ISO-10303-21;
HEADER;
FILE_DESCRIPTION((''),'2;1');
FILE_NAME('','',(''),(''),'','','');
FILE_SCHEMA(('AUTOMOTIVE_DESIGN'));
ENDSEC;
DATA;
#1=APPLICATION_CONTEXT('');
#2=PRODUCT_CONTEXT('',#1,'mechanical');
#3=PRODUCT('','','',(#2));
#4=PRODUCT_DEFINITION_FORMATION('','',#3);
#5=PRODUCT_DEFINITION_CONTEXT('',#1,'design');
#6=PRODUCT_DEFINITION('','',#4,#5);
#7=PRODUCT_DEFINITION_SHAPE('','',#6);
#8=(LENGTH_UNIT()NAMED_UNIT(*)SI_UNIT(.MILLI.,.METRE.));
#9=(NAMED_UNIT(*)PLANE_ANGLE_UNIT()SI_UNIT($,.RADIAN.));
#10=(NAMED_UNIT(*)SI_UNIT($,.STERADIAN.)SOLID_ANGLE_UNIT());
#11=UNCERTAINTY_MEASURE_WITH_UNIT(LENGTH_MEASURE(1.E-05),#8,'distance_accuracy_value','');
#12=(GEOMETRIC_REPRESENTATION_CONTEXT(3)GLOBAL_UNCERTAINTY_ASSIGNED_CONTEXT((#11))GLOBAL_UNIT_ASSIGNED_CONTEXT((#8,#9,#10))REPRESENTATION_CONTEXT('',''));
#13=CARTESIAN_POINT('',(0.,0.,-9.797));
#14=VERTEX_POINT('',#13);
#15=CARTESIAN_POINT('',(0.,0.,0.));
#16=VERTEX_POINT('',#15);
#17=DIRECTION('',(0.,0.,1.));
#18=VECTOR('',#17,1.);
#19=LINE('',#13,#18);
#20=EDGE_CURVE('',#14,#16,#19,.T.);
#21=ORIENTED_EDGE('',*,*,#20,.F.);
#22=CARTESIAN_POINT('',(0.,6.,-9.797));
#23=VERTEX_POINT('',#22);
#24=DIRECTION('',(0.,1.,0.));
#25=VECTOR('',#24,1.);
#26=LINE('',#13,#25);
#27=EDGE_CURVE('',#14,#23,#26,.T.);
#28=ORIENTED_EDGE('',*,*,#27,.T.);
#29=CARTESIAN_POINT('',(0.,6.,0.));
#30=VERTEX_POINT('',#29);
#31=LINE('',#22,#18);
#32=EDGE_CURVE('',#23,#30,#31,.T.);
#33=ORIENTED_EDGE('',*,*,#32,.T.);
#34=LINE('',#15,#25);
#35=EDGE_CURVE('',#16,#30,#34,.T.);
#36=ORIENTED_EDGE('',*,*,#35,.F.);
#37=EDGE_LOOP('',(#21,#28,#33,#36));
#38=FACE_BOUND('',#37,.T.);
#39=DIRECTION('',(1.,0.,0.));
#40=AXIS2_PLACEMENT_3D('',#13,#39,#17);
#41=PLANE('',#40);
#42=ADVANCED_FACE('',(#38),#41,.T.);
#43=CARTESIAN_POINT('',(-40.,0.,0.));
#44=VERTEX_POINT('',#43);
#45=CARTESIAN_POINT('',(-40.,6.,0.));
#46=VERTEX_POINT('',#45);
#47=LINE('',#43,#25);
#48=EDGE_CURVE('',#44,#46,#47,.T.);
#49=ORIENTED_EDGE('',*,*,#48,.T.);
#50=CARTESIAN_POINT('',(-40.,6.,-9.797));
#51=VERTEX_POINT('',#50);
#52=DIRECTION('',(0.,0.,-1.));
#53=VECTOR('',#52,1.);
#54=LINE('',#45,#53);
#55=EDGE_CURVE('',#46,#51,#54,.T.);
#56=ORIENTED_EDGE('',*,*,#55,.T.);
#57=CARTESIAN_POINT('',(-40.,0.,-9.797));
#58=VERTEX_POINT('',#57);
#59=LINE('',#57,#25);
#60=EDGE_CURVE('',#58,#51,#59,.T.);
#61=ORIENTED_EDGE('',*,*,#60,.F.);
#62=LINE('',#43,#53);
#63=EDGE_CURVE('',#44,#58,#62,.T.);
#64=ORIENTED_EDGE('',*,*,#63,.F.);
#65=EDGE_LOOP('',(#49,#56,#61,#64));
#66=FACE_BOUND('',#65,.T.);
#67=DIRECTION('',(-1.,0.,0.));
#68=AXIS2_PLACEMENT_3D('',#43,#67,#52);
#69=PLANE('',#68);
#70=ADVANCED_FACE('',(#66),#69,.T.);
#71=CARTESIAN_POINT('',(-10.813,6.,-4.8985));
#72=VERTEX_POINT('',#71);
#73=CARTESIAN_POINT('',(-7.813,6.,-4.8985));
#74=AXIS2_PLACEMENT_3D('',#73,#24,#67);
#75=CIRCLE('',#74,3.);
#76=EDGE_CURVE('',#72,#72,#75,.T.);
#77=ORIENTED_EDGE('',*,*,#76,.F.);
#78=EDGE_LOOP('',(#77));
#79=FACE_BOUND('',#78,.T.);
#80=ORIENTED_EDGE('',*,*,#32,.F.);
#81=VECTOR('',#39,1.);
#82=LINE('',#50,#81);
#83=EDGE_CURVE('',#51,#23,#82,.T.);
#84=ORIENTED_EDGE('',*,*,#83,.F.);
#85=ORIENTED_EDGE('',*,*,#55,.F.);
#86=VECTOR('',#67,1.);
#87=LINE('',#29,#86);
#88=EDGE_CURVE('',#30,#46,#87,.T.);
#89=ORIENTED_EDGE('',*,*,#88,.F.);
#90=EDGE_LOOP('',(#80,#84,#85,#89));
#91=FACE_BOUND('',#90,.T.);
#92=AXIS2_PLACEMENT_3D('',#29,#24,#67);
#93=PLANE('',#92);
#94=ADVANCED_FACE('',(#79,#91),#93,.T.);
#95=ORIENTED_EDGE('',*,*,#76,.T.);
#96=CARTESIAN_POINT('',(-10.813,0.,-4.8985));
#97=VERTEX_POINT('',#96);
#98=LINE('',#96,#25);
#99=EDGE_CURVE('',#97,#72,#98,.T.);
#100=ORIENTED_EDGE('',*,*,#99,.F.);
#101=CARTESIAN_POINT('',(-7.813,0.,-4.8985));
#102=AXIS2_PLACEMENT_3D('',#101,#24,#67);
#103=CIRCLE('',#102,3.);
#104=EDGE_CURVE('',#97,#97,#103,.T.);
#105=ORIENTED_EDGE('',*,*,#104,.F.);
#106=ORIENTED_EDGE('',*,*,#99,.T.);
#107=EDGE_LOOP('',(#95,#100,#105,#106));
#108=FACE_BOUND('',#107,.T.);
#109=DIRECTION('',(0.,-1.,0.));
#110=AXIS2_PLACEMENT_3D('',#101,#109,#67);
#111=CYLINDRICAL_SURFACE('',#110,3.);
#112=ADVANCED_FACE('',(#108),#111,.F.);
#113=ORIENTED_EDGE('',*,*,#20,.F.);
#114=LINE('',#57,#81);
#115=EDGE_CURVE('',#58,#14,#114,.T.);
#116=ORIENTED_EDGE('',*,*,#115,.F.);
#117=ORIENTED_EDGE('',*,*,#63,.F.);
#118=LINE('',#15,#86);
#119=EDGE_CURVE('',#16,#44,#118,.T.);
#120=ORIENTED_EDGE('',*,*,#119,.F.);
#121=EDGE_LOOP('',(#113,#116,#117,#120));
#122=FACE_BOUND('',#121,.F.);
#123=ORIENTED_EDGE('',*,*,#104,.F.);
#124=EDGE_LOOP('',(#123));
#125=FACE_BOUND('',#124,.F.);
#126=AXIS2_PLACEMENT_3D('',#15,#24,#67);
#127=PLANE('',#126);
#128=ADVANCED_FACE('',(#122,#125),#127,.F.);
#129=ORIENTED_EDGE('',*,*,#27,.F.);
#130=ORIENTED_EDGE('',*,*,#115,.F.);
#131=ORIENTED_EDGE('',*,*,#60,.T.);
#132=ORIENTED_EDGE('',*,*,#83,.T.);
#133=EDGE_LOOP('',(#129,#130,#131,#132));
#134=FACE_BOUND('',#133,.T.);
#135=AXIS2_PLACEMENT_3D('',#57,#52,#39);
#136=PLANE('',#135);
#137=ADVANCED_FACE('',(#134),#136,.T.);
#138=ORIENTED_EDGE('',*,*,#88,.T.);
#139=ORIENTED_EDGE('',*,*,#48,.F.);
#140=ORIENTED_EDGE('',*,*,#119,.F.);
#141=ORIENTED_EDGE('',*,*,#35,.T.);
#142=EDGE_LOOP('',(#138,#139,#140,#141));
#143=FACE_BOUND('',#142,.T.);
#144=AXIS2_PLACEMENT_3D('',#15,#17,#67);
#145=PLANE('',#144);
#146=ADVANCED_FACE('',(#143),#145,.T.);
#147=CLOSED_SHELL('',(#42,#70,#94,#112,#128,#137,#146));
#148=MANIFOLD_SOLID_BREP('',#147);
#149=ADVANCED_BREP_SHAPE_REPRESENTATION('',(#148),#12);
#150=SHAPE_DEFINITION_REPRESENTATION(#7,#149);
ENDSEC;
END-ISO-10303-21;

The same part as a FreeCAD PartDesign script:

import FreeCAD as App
import Part
import Sketcher

doc = App.newDocument("Part")
body = doc.addObject("PartDesign::Body", "Body")

# Sketch on XZ plane
sketch1 = body.newObject("Sketcher::SketchObject", "Sketch")
sketch1.AttachmentSupport = (doc.getObject("XZ_Plane"), [""])
sketch1.MapMode = "FlatFace"
sketch1.addGeometry(Part.LineSegment(App.Vector(-40, 0, 0), App.Vector(0, 0, 0)), False)
sketch1.addGeometry(Part.LineSegment(App.Vector(0, 0, 0), App.Vector(0, -9.797, 0)), False)
sketch1.addGeometry(Part.LineSegment(App.Vector(0, -9.797, 0), App.Vector(-40, -9.797, 0)), False)
sketch1.addGeometry(Part.LineSegment(App.Vector(-40, -9.797, 0), App.Vector(-40, 0, 0)), False)
sketch1.addGeometry(Part.Circle(App.Vector(-7.813, -4.8985, 0), App.Vector(0, 0, 1), 3), False)
sketch1.addConstraint(Sketcher.Constraint("Coincident", 0, 2, 1, 1))
sketch1.addConstraint(Sketcher.Constraint("Coincident", 1, 2, 2, 1))
sketch1.addConstraint(Sketcher.Constraint("Coincident", 2, 2, 3, 1))
sketch1.addConstraint(Sketcher.Constraint("Coincident", 3, 2, 0, 1))
sketch1.addConstraint(Sketcher.Constraint("Horizontal", 0))
sketch1.addConstraint(Sketcher.Constraint("Vertical", 1))
sketch1.addConstraint(Sketcher.Constraint("Horizontal", 2))
sketch1.addConstraint(Sketcher.Constraint("Vertical", 3))
sketch1.addConstraint(Sketcher.Constraint("Coincident", 0, 2, -1, 1))
sketch1.addConstraint(Sketcher.Constraint("Diameter", 4, 6.0))
sketch1.addConstraint(Sketcher.Constraint("DistanceX", 0, 1, 0, 2, 40.0))
sketch1.addConstraint(Sketcher.Constraint("DistanceY", 1, 2, 1, 1, 9.797))
sketch1.addConstraint(Sketcher.Constraint("DistanceX", 4, 3, -1, 1, 7.813))
sketch1.addConstraint(Sketcher.Constraint("DistanceY", 4, 3, -1, 1, 4.8985))
pad1 = body.newObject("PartDesign::Pad", "Pad")
pad1.Profile = sketch1
pad1.Length = 6
pad1.Reversed = True

doc.recompute()
